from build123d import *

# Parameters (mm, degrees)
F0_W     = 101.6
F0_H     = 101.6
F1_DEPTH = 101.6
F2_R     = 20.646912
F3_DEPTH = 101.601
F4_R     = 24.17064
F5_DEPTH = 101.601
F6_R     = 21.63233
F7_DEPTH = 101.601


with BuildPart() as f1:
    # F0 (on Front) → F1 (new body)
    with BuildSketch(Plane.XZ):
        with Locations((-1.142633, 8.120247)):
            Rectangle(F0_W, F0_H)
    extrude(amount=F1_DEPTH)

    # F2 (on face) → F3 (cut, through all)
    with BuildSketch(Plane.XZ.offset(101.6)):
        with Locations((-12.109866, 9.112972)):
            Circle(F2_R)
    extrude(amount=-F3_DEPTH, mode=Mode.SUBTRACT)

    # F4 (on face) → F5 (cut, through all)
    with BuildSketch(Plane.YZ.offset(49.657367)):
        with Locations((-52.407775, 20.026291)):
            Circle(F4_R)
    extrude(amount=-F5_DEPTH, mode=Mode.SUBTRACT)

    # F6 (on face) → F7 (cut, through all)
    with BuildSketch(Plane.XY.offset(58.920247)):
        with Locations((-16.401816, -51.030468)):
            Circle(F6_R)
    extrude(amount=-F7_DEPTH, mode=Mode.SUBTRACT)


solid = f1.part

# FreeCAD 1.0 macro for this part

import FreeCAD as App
import Part
import Sketcher
Q = App.Units.Quantity


def add_polygon(sketch, points):
    """Adds a closed chain of lines whose ends are joined by coincident constraints."""
    first, n = sketch.GeometryCount, len(points)
    for a, b in zip(points, points[1:] + points[:1]):
        sketch.addGeometry(Part.LineSegment(App.Vector(*a, 0), App.Vector(*b, 0)), False)
    for i in range(n):
        sketch.addConstraint(Sketcher.Constraint("Coincident", first + i, 2, first + (i + 1) % n, 1))

doc = App.newDocument("Part")
params = doc.addObject("Spreadsheet::Sheet", "Params")
for row, (alias, value) in enumerate([
    ("sketch1_width", "4 in"),
    ("pad1_length", "4 in"),
], start=1):
    params.set(f"A{row}", alias)
    params.set(f"B{row}", "=" + value)
    params.setAlias(f"B{row}", alias)

body = doc.addObject("PartDesign::Body", "Body")

# Sketch on XZ plane
sketch1 = body.newObject("Sketcher::SketchObject", "Sketch")
sketch1.AttachmentSupport = (doc.getObject("XZ_Plane"), [""])
sketch1.MapMode = "FlatFace"
add_polygon(sketch1, [(-51.942633, 58.920247), (-51.942633, -42.679753), (49.657367, -42.679753), (49.657367, 58.920247)])  # lines 0-3
sketch1.addConstraint([
    Sketcher.Constraint("Vertical", 0),
    Sketcher.Constraint("Horizontal", 1),
    Sketcher.Constraint("Vertical", 2),
    Sketcher.Constraint("Horizontal", 3),
    Sketcher.Constraint("Equal", 3, 0),
    Sketcher.Constraint("DistanceX", 1, 1, 1, 2, Q("4 in")),
    Sketcher.Constraint("DistanceX", 0, 2, -1, 1, Q("51.942633 mm")),
    Sketcher.Constraint("DistanceY", 0, 2, -1, 1, Q("42.679753 mm")),
])
sketch1.setExpression("Constraints[9]", "Params.sketch1_width")
pad1 = body.newObject("PartDesign::Pad", "Pad")
pad1.Profile = sketch1
pad1.setExpression("Length", "Params.pad1_length")

# Sketch on XZ plane
sketch2 = body.newObject("Sketcher::SketchObject", "Sketch001")
sketch2.AttachmentSupport = (doc.getObject("XZ_Plane"), [""])
sketch2.MapMode = "FlatFace"
sketch2.AttachmentOffset = App.Placement(App.Vector(0, 0, 4 * 25.4), App.Rotation())
sketch2.addGeometry(Part.Circle(App.Vector(-12.109866, 9.112972, 0), App.Vector(0, 0, 1), 20.646912), False)
sketch2.addConstraint([
    Sketcher.Constraint("Diameter", 0, Q("41.293824 mm")),
    Sketcher.Constraint("DistanceY", -1, 1, 0, 3, Q("9.112972 mm")),
    Sketcher.Constraint("DistanceX", 0, 3, -1, 1, Q("12.109866 mm")),
])
pocket1 = body.newObject("PartDesign::Pocket", "Pocket")
pocket1.Profile = sketch2
pocket1.Type = "ThroughAll"

# Sketch on YZ plane
sketch3 = body.newObject("Sketcher::SketchObject", "Sketch002")
sketch3.AttachmentSupport = (doc.getObject("YZ_Plane"), [""])
sketch3.MapMode = "FlatFace"
sketch3.AttachmentOffset = App.Placement(App.Vector(0, 0, 49.657367), App.Rotation())
sketch3.addGeometry(Part.Circle(App.Vector(-52.407775, 20.026291, 0), App.Vector(0, 0, 1), 24.17064), False)
sketch3.addConstraint([
    Sketcher.Constraint("Diameter", 0, Q("1.9032 in")),
    Sketcher.Constraint("DistanceY", -1, 1, 0, 3, Q("20.026291 mm")),
    Sketcher.Constraint("DistanceX", 0, 3, -1, 1, Q("52.407775 mm")),
])
pocket2 = body.newObject("PartDesign::Pocket", "Pocket001")
pocket2.Profile = sketch3
pocket2.Type = "ThroughAll"

# Sketch on XY plane
sketch4 = body.newObject("Sketcher::SketchObject", "Sketch003")
sketch4.AttachmentSupport = (doc.getObject("XY_Plane"), [""])
sketch4.MapMode = "FlatFace"
sketch4.AttachmentOffset = App.Placement(App.Vector(0, 0, 58.920247), App.Rotation())
sketch4.addGeometry(Part.Circle(App.Vector(-16.401816, -51.030468, 0), App.Vector(0, 0, 1), 21.63233), False)
sketch4.addConstraint([
    Sketcher.Constraint("Diameter", 0, Q("43.26466 mm")),
    Sketcher.Constraint("DistanceX", 0, 3, -1, 1, Q("16.401816 mm")),
    Sketcher.Constraint("DistanceY", 0, 3, -1, 1, Q("51.030468 mm")),
])
pocket3 = body.newObject("PartDesign::Pocket", "Pocket002")
pocket3.Profile = sketch4
pocket3.Type = "ThroughAll"

doc.recompute()
